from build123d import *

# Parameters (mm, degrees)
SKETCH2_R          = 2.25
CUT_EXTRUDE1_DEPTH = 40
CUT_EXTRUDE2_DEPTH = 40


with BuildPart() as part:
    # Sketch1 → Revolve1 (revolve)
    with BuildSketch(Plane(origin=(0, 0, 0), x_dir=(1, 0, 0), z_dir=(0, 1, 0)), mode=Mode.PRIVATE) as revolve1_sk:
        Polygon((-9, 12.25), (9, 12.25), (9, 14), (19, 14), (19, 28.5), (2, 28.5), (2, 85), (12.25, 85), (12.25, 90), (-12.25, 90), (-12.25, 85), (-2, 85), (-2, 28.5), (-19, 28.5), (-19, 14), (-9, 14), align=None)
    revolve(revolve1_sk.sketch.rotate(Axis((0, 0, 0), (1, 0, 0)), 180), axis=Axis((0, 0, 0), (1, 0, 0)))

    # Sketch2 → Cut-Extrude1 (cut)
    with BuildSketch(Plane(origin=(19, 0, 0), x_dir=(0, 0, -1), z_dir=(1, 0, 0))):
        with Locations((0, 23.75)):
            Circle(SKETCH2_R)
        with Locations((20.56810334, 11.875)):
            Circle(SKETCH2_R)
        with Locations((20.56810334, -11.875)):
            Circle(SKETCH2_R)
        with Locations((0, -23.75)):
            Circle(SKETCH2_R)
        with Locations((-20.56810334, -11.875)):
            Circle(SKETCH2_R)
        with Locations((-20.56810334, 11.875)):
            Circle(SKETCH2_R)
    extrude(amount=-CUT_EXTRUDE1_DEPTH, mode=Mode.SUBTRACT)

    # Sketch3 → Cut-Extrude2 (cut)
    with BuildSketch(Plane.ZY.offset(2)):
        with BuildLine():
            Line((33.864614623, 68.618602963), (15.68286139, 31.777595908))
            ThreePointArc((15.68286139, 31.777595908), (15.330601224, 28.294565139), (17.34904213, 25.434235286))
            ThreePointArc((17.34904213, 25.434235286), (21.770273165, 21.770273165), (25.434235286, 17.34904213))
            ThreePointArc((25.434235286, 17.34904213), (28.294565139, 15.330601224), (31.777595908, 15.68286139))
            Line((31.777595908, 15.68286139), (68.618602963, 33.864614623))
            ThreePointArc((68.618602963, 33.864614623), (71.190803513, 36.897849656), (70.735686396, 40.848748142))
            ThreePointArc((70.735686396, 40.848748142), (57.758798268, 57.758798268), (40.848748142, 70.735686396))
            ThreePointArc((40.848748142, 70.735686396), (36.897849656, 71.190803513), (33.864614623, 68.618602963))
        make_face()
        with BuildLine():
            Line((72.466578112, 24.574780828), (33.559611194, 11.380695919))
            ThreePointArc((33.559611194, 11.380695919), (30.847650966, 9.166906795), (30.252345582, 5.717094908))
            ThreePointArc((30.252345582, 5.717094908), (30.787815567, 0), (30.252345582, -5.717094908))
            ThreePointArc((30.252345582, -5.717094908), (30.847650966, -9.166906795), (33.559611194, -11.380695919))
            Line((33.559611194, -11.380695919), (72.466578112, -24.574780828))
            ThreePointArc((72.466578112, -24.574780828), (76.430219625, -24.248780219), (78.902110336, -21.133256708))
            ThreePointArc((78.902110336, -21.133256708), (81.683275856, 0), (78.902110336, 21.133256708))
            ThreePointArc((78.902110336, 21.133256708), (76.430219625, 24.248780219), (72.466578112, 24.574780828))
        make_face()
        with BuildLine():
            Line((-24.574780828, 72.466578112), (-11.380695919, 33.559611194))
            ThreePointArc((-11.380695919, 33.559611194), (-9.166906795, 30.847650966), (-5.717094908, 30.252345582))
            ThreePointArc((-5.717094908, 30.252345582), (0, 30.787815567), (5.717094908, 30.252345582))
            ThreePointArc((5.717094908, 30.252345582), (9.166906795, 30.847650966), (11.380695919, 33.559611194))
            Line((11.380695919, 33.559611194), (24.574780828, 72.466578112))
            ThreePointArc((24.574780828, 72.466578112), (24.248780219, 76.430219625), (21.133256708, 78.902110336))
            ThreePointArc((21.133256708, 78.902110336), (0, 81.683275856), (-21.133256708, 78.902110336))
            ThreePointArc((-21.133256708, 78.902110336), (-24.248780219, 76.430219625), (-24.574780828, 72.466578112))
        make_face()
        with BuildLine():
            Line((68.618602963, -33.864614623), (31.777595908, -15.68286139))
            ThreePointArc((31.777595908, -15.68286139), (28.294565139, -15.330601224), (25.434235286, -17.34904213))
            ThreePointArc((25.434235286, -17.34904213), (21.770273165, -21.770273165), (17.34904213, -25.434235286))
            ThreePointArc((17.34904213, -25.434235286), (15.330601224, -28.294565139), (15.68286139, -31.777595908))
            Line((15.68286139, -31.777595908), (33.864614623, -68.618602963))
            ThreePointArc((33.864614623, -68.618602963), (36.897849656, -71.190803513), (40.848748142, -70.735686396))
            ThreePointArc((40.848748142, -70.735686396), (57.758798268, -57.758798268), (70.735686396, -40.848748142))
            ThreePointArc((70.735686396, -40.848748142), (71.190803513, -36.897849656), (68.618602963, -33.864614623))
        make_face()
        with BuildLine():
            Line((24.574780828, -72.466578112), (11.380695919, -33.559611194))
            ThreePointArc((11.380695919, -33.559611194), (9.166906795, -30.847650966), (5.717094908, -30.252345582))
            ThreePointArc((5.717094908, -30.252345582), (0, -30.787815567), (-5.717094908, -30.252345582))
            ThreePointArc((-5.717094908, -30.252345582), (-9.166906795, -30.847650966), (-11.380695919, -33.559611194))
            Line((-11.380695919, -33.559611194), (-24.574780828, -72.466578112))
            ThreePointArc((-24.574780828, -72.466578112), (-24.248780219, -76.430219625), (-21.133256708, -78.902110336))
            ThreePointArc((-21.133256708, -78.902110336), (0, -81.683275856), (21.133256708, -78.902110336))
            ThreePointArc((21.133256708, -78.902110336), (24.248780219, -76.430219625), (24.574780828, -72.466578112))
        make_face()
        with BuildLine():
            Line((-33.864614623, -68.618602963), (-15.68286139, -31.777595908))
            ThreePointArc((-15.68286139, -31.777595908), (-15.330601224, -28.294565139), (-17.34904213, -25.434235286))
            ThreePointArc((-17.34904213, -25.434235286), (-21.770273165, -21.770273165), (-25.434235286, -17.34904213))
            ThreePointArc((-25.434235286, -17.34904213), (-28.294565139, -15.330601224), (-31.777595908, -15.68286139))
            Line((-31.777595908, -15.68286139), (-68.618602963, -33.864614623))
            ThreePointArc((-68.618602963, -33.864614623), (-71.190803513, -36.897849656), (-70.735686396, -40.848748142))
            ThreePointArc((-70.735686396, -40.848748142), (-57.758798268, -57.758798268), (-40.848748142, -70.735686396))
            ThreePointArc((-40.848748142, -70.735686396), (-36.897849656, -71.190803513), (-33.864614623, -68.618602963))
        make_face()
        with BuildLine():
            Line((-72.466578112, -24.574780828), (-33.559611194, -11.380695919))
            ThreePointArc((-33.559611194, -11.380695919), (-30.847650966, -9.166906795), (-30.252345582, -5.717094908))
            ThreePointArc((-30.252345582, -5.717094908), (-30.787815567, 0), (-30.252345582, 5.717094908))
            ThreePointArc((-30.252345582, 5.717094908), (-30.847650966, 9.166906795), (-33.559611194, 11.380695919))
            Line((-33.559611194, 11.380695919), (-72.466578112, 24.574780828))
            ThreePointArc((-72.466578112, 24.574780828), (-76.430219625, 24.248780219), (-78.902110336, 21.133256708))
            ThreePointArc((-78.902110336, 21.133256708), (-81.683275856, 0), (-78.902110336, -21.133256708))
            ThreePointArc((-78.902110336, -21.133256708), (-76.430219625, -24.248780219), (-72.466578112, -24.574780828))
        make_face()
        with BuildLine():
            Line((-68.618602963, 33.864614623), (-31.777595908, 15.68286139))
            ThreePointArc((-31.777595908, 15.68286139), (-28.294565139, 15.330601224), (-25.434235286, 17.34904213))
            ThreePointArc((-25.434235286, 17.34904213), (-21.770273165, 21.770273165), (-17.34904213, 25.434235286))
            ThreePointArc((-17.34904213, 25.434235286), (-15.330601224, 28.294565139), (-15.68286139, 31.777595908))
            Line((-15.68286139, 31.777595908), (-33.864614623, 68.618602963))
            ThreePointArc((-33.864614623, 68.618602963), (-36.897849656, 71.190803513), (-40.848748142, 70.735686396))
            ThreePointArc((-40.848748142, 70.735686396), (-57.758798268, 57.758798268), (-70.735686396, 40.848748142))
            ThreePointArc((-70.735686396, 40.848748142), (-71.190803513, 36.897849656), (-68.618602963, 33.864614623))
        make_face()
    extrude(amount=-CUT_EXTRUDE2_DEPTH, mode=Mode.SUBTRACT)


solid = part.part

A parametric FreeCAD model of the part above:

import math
import FreeCAD as App
import Part
import Sketcher

V = App.Vector


def add_polygon(sketch, points):
    """Adds a closed chain of lines whose ends are joined by coincident constraints."""
    first, n = sketch.GeometryCount, len(points)
    for a, b in zip(points, points[1:] + points[:1]):
        sketch.addGeometry(Part.LineSegment(App.Vector(*a, 0), App.Vector(*b, 0)), False)
    for i in range(n):
        sketch.addConstraint(Sketcher.Constraint("Coincident", first + i, 2, first + (i + 1) % n, 1))

doc = App.newDocument("Part")
params = doc.addObject("Spreadsheet::Sheet", "Params")
for row, (alias, value) in enumerate([
    ("sketch1_width", "18 mm"),
    ("sketch1_width2", "10 mm"),
    ("sketch1_width3", "17 mm"),
    ("sketch1_height", "5 mm"),
    ("sketch1_width4", "24.5 mm"),
    ("revolution_angle", "360 deg"),
    ("sketch2_diameter", "4.5 mm"),
    ("pocket1_length", "40 mm"),
    ("sketch3_radius", "5 mm"),
    ("pocket2_length", "40 mm"),
], start=1):
    params.set(f"A{row}", alias)
    params.set(f"B{row}", "=" + value)
    params.setAlias(f"B{row}", alias)

body = doc.addObject("PartDesign::Body", "Body")

# Sketch on XZ plane
sketch1 = body.newObject("Sketcher::SketchObject", "Sketch")
sketch1.AttachmentSupport = (doc.getObject("XZ_Plane"), [""])
sketch1.MapMode = "FlatFace"
add_polygon(sketch1, [(-9, -12.2), (9, -12.2), (9, -14), (19, -14), (19, -28.5), (2, -28.5), (2, -85), (12.2, -85), (12.2, -90), (-12.2, -90), (-12.2, -85), (-2, -85), (-2, -28.5), (-19, -28.5), (-19, -14), (-9, -14)])  # lines 0-15
sketch1.addConstraint([
    Sketcher.Constraint("Horizontal", 0),
    Sketcher.Constraint("Vertical", 1),
    Sketcher.Constraint("Horizontal", 2),
    Sketcher.Constraint("Vertical", 3),
    Sketcher.Constraint("Horizontal", 4),
    Sketcher.Constraint("Vertical", 5),
    Sketcher.Constraint("Horizontal", 6),
    Sketcher.Constraint("Vertical", 7),
    Sketcher.Constraint("Horizontal", 8),
    Sketcher.Constraint("Vertical", 9),
    Sketcher.Constraint("Horizontal", 10),
    Sketcher.Constraint("Vertical", 11),
    Sketcher.Constraint("Horizontal", 12),
    Sketcher.Constraint("Vertical", 13),
    Sketcher.Constraint("Horizontal", 14),
    Sketcher.Constraint("Vertical", 15),
    Sketcher.Constraint("Symmetric", 6, 2, 9, 2, -2),
    Sketcher.Constraint("Symmetric", 4, 2, 11, 2, -2),
    Sketcher.Constraint("Symmetric", 2, 2, 13, 2, -2),
    Sketcher.Constraint("Equal", 2, 14),
    Sketcher.Constraint("DistanceX", 0, 1, 0, 2, 18.0),
    Sketcher.Constraint("DistanceX", 2, 1, 2, 2, 10.0),
    Sketcher.Constraint("DistanceX", 4, 2, 4, 1, 17.0),
    Sketcher.Constraint("DistanceY", 7, 2, 7, 1, 5.0),
    Sketcher.Constraint("DistanceX", 8, 2, 8, 1, 24.5),
    Sketcher.Constraint("DistanceY", 3, 2, 3, 1, 14.5),
    Sketcher.Constraint("DistanceY", 5, 2, 5, 1, 56.5),
    Sketcher.Constraint("DistanceY", 1, 2, -1, 1, 14.0),
    Sketcher.Constraint("DistanceY", 1, 2, 1, 1, 1.75),
])
sketch1.setExpression("Constraints[36]", "Params.sketch1_width")
sketch1.setExpression("Constraints[37]", "Params.sketch1_width2")
sketch1.setExpression("Constraints[38]", "Params.sketch1_width3")
sketch1.setExpression("Constraints[39]", "Params.sketch1_height")
sketch1.setExpression("Constraints[40]", "Params.sketch1_width4")
revolution = body.newObject("PartDesign::Revolution", "Revolution")
revolution.Profile = sketch1
revolution.ReferenceAxis = (sketch1, ["H_Axis"])
revolution.setExpression("Angle", "Params.revolution_angle")

# Sketch on YZ plane
sketch2 = body.newObject("Sketcher::SketchObject", "Sketch001")
sketch2.AttachmentSupport = (doc.getObject("YZ_Plane"), [""])
sketch2.MapMode = "FlatFace"
sketch2.AttachmentOffset = App.Placement(V(0, 0, 19), App.Rotation())
sketch2.addGeometry([
    Part.Circle(V(23.8, 0, 0), V(0, 0, 1), 2.2),  # 0
    Part.Circle(V(11.9, -20.6, 0), V(0, 0, 1), 2.2),  # 1
    Part.Circle(V(-11.9, -20.6, 0), V(0, 0, 1), 2.2),  # 2
    Part.Circle(V(-23.8, 0, 0), V(0, 0, 1), 2.2),  # 3
    Part.Circle(V(-11.9, 20.6, 0), V(0, 0, 1), 2.2),  # 4
    Part.Circle(V(11.9, 20.6, 0), V(0, 0, 1), 2.2),  # 5
], False)
sketch2.addConstraint([
    Sketcher.Constraint("Equal", 0, 1),
    Sketcher.Constraint("Equal", 1, 2),
    Sketcher.Constraint("Equal", 2, 3),
    Sketcher.Constraint("Equal", 3, 4),
    Sketcher.Constraint("Equal", 4, 5),
    Sketcher.Constraint("Symmetric", 0, 3, 3, 3, -1, 1),
    Sketcher.Constraint("Symmetric", 1, 3, 4, 3, -1, 1),
    Sketcher.Constraint("Symmetric", 2, 3, 5, 3, -1, 1),
    Sketcher.Constraint("Symmetric", 1, 3, 2, 3, -2),
    Sketcher.Constraint("PointOnObject", 0, 3, -1),
    Sketcher.Constraint("Diameter", 0, 4.5),
    Sketcher.Constraint("DistanceX", 3, 3, 0, 3, 47.5),
    Sketcher.Constraint("DistanceX", 2, 3, 1, 3, 23.75),
    Sketcher.Constraint("DistanceY", 1, 3, -1, 1, 20.568103),
])
sketch2.setExpression("Constraints[10]", "Params.sketch2_diameter")
pocket1 = body.newObject("PartDesign::Pocket", "Pocket")
pocket1.Profile = sketch2
pocket1.setExpression("Length", "Params.pocket1_length")

# Sketch on YZ plane
sketch3 = body.newObject("Sketcher::SketchObject", "Sketch002")
sketch3.AttachmentSupport = (doc.getObject("YZ_Plane"), [""])
sketch3.MapMode = "FlatFace"
sketch3.AttachmentOffset = App.Placement(V(0, 0, -2), App.Rotation())
sketch3.addGeometry([
    Part.LineSegment(V(68.6, 33.9, 0), V(31.8, 15.7, 0)),  # 0
    Part.ArcOfCircle(Part.Circle(V(29.6, 20.2, 0), V(0, 0, 1), 5), math.radians(-146), math.radians(-64)),  # 1
    Part.ArcOfCircle(Part.Circle(V(0, 0, 0), V(0, 0, 1), 30.8), math.radians(34), math.radians(56)),  # 2
    Part.ArcOfCircle(Part.Circle(V(20.2, 29.6, 0), V(0, 0, 1), 5), math.radians(154), math.radians(236)),  # 3
    Part.LineSegment(V(15.7, 31.8, 0), V(33.9, 68.6, 0)),  # 4
    Part.ArcOfCircle(Part.Circle(V(38.3, 66.4, 0), V(0, 0, 1), 5), math.radians(60), math.radians(154)),  # 5
    Part.ArcOfCircle(Part.Circle(V(0, 0, 0), V(0, 0, 1), 81.7), math.radians(30), math.radians(60)),  # 6
    Part.ArcOfCircle(Part.Circle(V(66.4, 38.3, 0), V(0, 0, 1), 5), math.radians(-64), math.radians(30)),  # 7
    Part.LineSegment(V(24.6, 72.5, 0), V(11.4, 33.6, 0)),  # 8
    Part.ArcOfCircle(Part.Circle(V(6.6, 35.2, 0), V(0, 0, 1), 5), math.radians(-101), math.radians(-19)),  # 9
    Part.ArcOfCircle(Part.Circle(V(0, 0, 0), V(0, 0, 1), 30.8), math.radians(79), math.radians(101)),  # 10
    Part.ArcOfCircle(Part.Circle(V(-6.6, 35.2, 0), V(0, 0, 1), 5), math.radians(-161), math.radians(-79)),  # 11
    Part.LineSegment(V(-11.4, 33.6, 0), V(-24.6, 72.5, 0)),  # 12
    Part.ArcOfCircle(Part.Circle(V(-19.8, 74.1, 0), V(0, 0, 1), 5), math.radians(105), math.radians(199)),  # 13
    Part.ArcOfCircle(Part.Circle(V(0, 0, 0), V(0, 0, 1), 81.7), math.radians(75), math.radians(105)),  # 14
    Part.ArcOfCircle(Part.Circle(V(19.8, 74.1, 0), V(0, 0, 1), 5), math.radians(-19), math.radians(75)),  # 15
    Part.LineSegment(V(72.5, -24.6, 0), V(33.6, -11.4, 0)),  # 16
    Part.ArcOfCircle(Part.Circle(V(35.2, -6.6, 0), V(0, 0, 1), 5), math.radians(169), math.radians(251)),  # 17
    Part.ArcOfCircle(Part.Circle(V(0, 0, 0), V(0, 0, 1), 30.8), math.radians(-11), math.radians(11)),  # 18
    Part.ArcOfCircle(Part.Circle(V(35.2, 6.6, 0), V(0, 0, 1), 5), math.radians(109), math.radians(191)),  # 19
    Part.LineSegment(V(33.6, 11.4, 0), V(72.5, 24.6, 0)),  # 20
    Part.ArcOfCircle(Part.Circle(V(74.1, 19.8, 0), V(0, 0, 1), 5), math.radians(15), math.radians(109)),  # 21
    Part.ArcOfCircle(Part.Circle(V(0, 0, 0), V(0, 0, 1), 81.7), math.radians(-15), math.radians(15)),  # 22
    Part.ArcOfCircle(Part.Circle(V(74.1, -19.8, 0), V(0, 0, 1), 5), math.radians(-109), math.radians(-15)),  # 23
    Part.LineSegment(V(-33.9, 68.6, 0), V(-15.7, 31.8, 0)),  # 24
    Part.ArcOfCircle(Part.Circle(V(-20.2, 29.6, 0), V(0, 0, 1), 5), math.radians(-56), math.radians(26)),  # 25
    Part.ArcOfCircle(Part.Circle(V(0, 0, 0), V(0, 0, 1), 30.8), math.radians(124), math.radians(146)),  # 26
    Part.ArcOfCircle(Part.Circle(V(-29.6, 20.2, 0), V(0, 0, 1), 5), math.radians(-116), math.radians(-34)),  # 27
    Part.LineSegment(V(-31.8, 15.7, 0), V(-68.6, 33.9, 0)),  # 28
    Part.ArcOfCircle(Part.Circle(V(-66.4, 38.3, 0), V(0, 0, 1), 5), math.radians(150), math.radians(244)),  # 29
    Part.ArcOfCircle(Part.Circle(V(0, 0, 0), V(0, 0, 1), 81.7), math.radians(120), math.radians(150)),  # 30
    Part.ArcOfCircle(Part.Circle(V(-38.3, 66.4, 0), V(0, 0, 1), 5), math.radians(26), math.radians(120)),  # 31
    Part.LineSegment(V(-72.5, 24.6, 0), V(-33.6, 11.4, 0)),  # 32
    Part.ArcOfCircle(Part.Circle(V(-35.2, 6.6, 0), V(0, 0, 1), 5), math.radians(-11), math.radians(71)),  # 33
    Part.ArcOfCircle(Part.Circle(V(0, 0, 0), V(0, 0, 1), 30.8), math.radians(169), math.radians(191)),  # 34
    Part.ArcOfCircle(Part.Circle(V(-35.2, -6.6, 0), V(0, 0, 1), 5), math.radians(-71), math.radians(11)),  # 35
    Part.LineSegment(V(-33.6, -11.4, 0), V(-72.5, -24.6, 0)),  # 36
    Part.ArcOfCircle(Part.Circle(V(-74.1, -19.8, 0), V(0, 0, 1), 5), math.radians(-165), math.radians(-71)),  # 37
    Part.ArcOfCircle(Part.Circle(V(0, 0, 0), V(0, 0, 1), 81.7), math.radians(165), math.radians(195)),  # 38
    Part.ArcOfCircle(Part.Circle(V(-74.1, 19.8, 0), V(0, 0, 1), 5), math.radians(71), math.radians(165)),  # 39
    Part.LineSegment(V(-68.6, -33.9, 0), V(-31.8, -15.7, 0)),  # 40
    Part.ArcOfCircle(Part.Circle(V(-29.6, -20.2, 0), V(0, 0, 1), 5), math.radians(34), math.radians(116)),  # 41
    Part.ArcOfCircle(Part.Circle(V(0, 0, 0), V(0, 0, 1), 30.8), math.radians(-146), math.radians(-124)),  # 42
    Part.ArcOfCircle(Part.Circle(V(-20.2, -29.6, 0), V(0, 0, 1), 5), math.radians(-26), math.radians(56)),  # 43
    Part.LineSegment(V(-15.7, -31.8, 0), V(-33.9, -68.6, 0)),  # 44
    Part.ArcOfCircle(Part.Circle(V(-38.3, -66.4, 0), V(0, 0, 1), 5), math.radians(-120), math.radians(-26)),  # 45
    Part.ArcOfCircle(Part.Circle(V(0, 0, 0), V(0, 0, 1), 81.7), math.radians(-150), math.radians(-120)),  # 46
    Part.ArcOfCircle(Part.Circle(V(-66.4, -38.3, 0), V(0, 0, 1), 5), math.radians(116), math.radians(210)),  # 47
    Part.LineSegment(V(-24.6, -72.5, 0), V(-11.4, -33.6, 0)),  # 48
    Part.ArcOfCircle(Part.Circle(V(-6.6, -35.2, 0), V(0, 0, 1), 5), math.radians(79), math.radians(161)),  # 49
    Part.ArcOfCircle(Part.Circle(V(0, 0, 0), V(0, 0, 1), 30.8), math.radians(-101), math.radians(-79)),  # 50
    Part.ArcOfCircle(Part.Circle(V(6.6, -35.2, 0), V(0, 0, 1), 5), math.radians(19), math.radians(101)),  # 51
    Part.LineSegment(V(11.4, -33.6, 0), V(24.6, -72.5, 0)),  # 52
    Part.ArcOfCircle(Part.Circle(V(19.8, -74.1, 0), V(0, 0, 1), 5), math.radians(-75), math.radians(19)),  # 53
    Part.ArcOfCircle(Part.Circle(V(0, 0, 0), V(0, 0, 1), 81.7), math.radians(-105), math.radians(-75)),  # 54
    Part.ArcOfCircle(Part.Circle(V(-19.8, -74.1, 0), V(0, 0, 1), 5), math.radians(161), math.radians(255)),  # 55
    Part.LineSegment(V(33.9, -68.6, 0), V(15.7, -31.8, 0)),  # 56
    Part.ArcOfCircle(Part.Circle(V(20.2, -29.6, 0), V(0, 0, 1), 5), math.radians(124), math.radians(206)),  # 57
    Part.ArcOfCircle(Part.Circle(V(0, 0, 0), V(0, 0, 1), 30.8), math.radians(-56), math.radians(-34)),  # 58
    Part.ArcOfCircle(Part.Circle(V(29.6, -20.2, 0), V(0, 0, 1), 5), math.radians(64), math.radians(146)),  # 59
    Part.LineSegment(V(31.8, -15.7, 0), V(68.6, -33.9, 0)),  # 60
    Part.ArcOfCircle(Part.Circle(V(66.4, -38.3, 0), V(0, 0, 1), 5), math.radians(-30), math.radians(64)),  # 61
    Part.ArcOfCircle(Part.Circle(V(0, 0, 0), V(0, 0, 1), 81.7), math.radians(-60), math.radians(-30)),  # 62
    Part.ArcOfCircle(Part.Circle(V(38.3, -66.4, 0), V(0, 0, 1), 5), math.radians(-154), math.radians(-60)),  # 63
], False)
sketch3.addConstraint([
    Sketcher.Constraint("Tangent", 0, 2, 1, 2),
    Sketcher.Constraint("Tangent", 1, 1, 2, 1),
    Sketcher.Constraint("Tangent", 2, 2, 3, 2),
    Sketcher.Constraint("Tangent", 3, 1, 4, 1),
    Sketcher.Constraint("Tangent", 4, 2, 5, 2),
    Sketcher.Constraint("Tangent", 5, 1, 6, 2),
    Sketcher.Constraint("Tangent", 6, 1, 7, 2),
    Sketcher.Constraint("Tangent", 7, 1, 0, 1),
    Sketcher.Constraint("Tangent", 8, 2, 9, 2),
    Sketcher.Constraint("Tangent", 9, 1, 10, 1),
    Sketcher.Constraint("Tangent", 10, 2, 11, 2),
    Sketcher.Constraint("Tangent", 11, 1, 12, 1),
    Sketcher.Constraint("Tangent", 12, 2, 13, 2),
    Sketcher.Constraint("Tangent", 13, 1, 14, 2),
    Sketcher.Constraint("Tangent", 14, 1, 15, 2),
    Sketcher.Constraint("Tangent", 15, 1, 8, 1),
    Sketcher.Constraint("Tangent", 16, 2, 17, 2),
    Sketcher.Constraint("Tangent", 17, 1, 18, 1),
    Sketcher.Constraint("Tangent", 18, 2, 19, 2),
    Sketcher.Constraint("Tangent", 19, 1, 20, 1),
    Sketcher.Constraint("Tangent", 20, 2, 21, 2),
    Sketcher.Constraint("Tangent", 21, 1, 22, 2),
    Sketcher.Constraint("Tangent", 22, 1, 23, 2),
    Sketcher.Constraint("Tangent", 23, 1, 16, 1),
    Sketcher.Constraint("Tangent", 24, 2, 25, 2),
    Sketcher.Constraint("Tangent", 25, 1, 26, 1),
    Sketcher.Constraint("Tangent", 26, 2, 27, 2),
    Sketcher.Constraint("Tangent", 27, 1, 28, 1),
    Sketcher.Constraint("Tangent", 28, 2, 29, 2),
    Sketcher.Constraint("Tangent", 29, 1, 30, 2),
    Sketcher.Constraint("Tangent", 30, 1, 31, 2),
    Sketcher.Constraint("Tangent", 31, 1, 24, 1),
    Sketcher.Constraint("Tangent", 32, 2, 33, 2),
    Sketcher.Constraint("Tangent", 33, 1, 34, 1),
    Sketcher.Constraint("Tangent", 34, 2, 35, 2),
    Sketcher.Constraint("Tangent", 35, 1, 36, 1),
    Sketcher.Constraint("Tangent", 36, 2, 37, 2),
    Sketcher.Constraint("Tangent", 37, 1, 38, 2),
    Sketcher.Constraint("Tangent", 38, 1, 39, 2),
    Sketcher.Constraint("Tangent", 39, 1, 32, 1),
    Sketcher.Constraint("Tangent", 40, 2, 41, 2),
    Sketcher.Constraint("Tangent", 41, 1, 42, 1),
    Sketcher.Constraint("Tangent", 42, 2, 43, 2),
    Sketcher.Constraint("Tangent", 43, 1, 44, 1),
    Sketcher.Constraint("Tangent", 44, 2, 45, 2),
    Sketcher.Constraint("Tangent", 45, 1, 46, 2),
    Sketcher.Constraint("Tangent", 46, 1, 47, 2),
    Sketcher.Constraint("Tangent", 47, 1, 40, 1),
    Sketcher.Constraint("Tangent", 48, 2, 49, 2),
    Sketcher.Constraint("Tangent", 49, 1, 50, 1),
    Sketcher.Constraint("Tangent", 50, 2, 51, 2),
    Sketcher.Constraint("Tangent", 51, 1, 52, 1),
    Sketcher.Constraint("Tangent", 52, 2, 53, 2),
    Sketcher.Constraint("Tangent", 53, 1, 54, 2),
    Sketcher.Constraint("Tangent", 54, 1, 55, 2),
    Sketcher.Constraint("Tangent", 55, 1, 48, 1),
    Sketcher.Constraint("Tangent", 56, 2, 57, 2),
    Sketcher.Constraint("Tangent", 57, 1, 58, 1),
    Sketcher.Constraint("Tangent", 58, 2, 59, 2),
    Sketcher.Constraint("Tangent", 59, 1, 60, 1),
    Sketcher.Constraint("Tangent", 60, 2, 61, 2),
    Sketcher.Constraint("Tangent", 61, 1, 62, 2),
    Sketcher.Constraint("Tangent", 62, 1, 63, 2),
    Sketcher.Constraint("Tangent", 63, 1, 56, 1),
    Sketcher.Constraint("Coincident", 2, 3, -1, 1),
    Sketcher.Constraint("Coincident", 6, 3, -1, 1),
    Sketcher.Constraint("Coincident", 10, 3, -1, 1),
    Sketcher.Constraint("Coincident", 14, 3, -1, 1),
    Sketcher.Constraint("Coincident", 18, 3, -1, 1),
    Sketcher.Constraint("Coincident", 22, 3, -1, 1),
    Sketcher.Constraint("Coincident", 26, 3, -1, 1),
    Sketcher.Constraint("Coincident", 30, 3, -1, 1),
    Sketcher.Constraint("Coincident", 34, 3, -1, 1),
    Sketcher.Constraint("Coincident", 38, 3, -1, 1),
    Sketcher.Constraint("Coincident", 42, 3, -1, 1),
    Sketcher.Constraint("Coincident", 46, 3, -1, 1),
    Sketcher.Constraint("Coincident", 50, 3, -1, 1),
    Sketcher.Constraint("Coincident", 54, 3, -1, 1),
    Sketcher.Constraint("Coincident", 58, 3, -1, 1),
    Sketcher.Constraint("Coincident", 62, 3, -1, 1),
    Sketcher.Constraint("Equal", 1, 3),
    Sketcher.Constraint("Equal", 3, 5),
    Sketcher.Constraint("Equal", 5, 7),
    Sketcher.Constraint("Equal", 7, 9),
    Sketcher.Constraint("Equal", 2, 10),
    Sketcher.Constraint("Equal", 9, 11),
    Sketcher.Constraint("Equal", 11, 13),
    Sketcher.Constraint("Equal", 6, 14),
    Sketcher.Constraint("Equal", 13, 15),
    Sketcher.Constraint("Equal", 15, 17),
    Sketcher.Constraint("Equal", 10, 18),
    Sketcher.Constraint("Equal", 17, 19),
    Sketcher.Constraint("Equal", 19, 21),
    Sketcher.Constraint("Equal", 14, 22),
    Sketcher.Constraint("Equal", 21, 23),
    Sketcher.Constraint("Equal", 23, 25),
    Sketcher.Constraint("Equal", 18, 26),
    Sketcher.Constraint("Equal", 25, 27),
    Sketcher.Constraint("Equal", 27, 29),
    Sketcher.Constraint("Equal", 22, 30),
    Sketcher.Constraint("Equal", 29, 31),
    Sketcher.Constraint("Equal", 31, 33),
    Sketcher.Constraint("Equal", 26, 34),
    Sketcher.Constraint("Equal", 33, 35),
    Sketcher.Constraint("Equal", 35, 37),
    Sketcher.Constraint("Equal", 30, 38),
    Sketcher.Constraint("Equal", 37, 39),
    Sketcher.Constraint("Equal", 39, 41),
    Sketcher.Constraint("Equal", 34, 42),
    Sketcher.Constraint("Equal", 41, 43),
    Sketcher.Constraint("Equal", 43, 45),
    Sketcher.Constraint("Equal", 38, 46),
    Sketcher.Constraint("Equal", 45, 47),
    Sketcher.Constraint("Equal", 47, 49),
    Sketcher.Constraint("Equal", 42, 50),
    Sketcher.Constraint("Equal", 49, 51),
    Sketcher.Constraint("Equal", 51, 53),
    Sketcher.Constraint("Equal", 46, 54),
    Sketcher.Constraint("Equal", 53, 55),
    Sketcher.Constraint("Equal", 55, 57),
    Sketcher.Constraint("Equal", 50, 58),
    Sketcher.Constraint("Equal", 57, 59),
    Sketcher.Constraint("Equal", 59, 61),
    Sketcher.Constraint("Equal", 54, 62),
    Sketcher.Constraint("Equal", 61, 63),
    Sketcher.Constraint("Symmetric", 16, 2, 32, 2, -1, 1),
    Sketcher.Constraint("Symmetric", 19, 1, 35, 1, -1, 1),
    Sketcher.Constraint("Symmetric", 0, 2, 40, 2, -1, 1),
    Sketcher.Constraint("Symmetric", 3, 1, 43, 1, -1, 1),
    Sketcher.Constraint("Symmetric", 8, 2, 48, 2, -1, 1),
    Sketcher.Constraint("Symmetric", 11, 1, 51, 1, -1, 1),
    Sketcher.Constraint("Symmetric", 24, 2, 56, 2, -1, 1),
    Sketcher.Constraint("Symmetric", 27, 1, 59, 1, -1, 1),
    Sketcher.Constraint("Symmetric", 8, 2, 11, 1, -2),
    Sketcher.Constraint("Symmetric", 3, 1, 24, 2, -2),
    Sketcher.Constraint("Symmetric", 0, 2, 27, 1, -2),
    Sketcher.Constraint("Symmetric", 19, 1, 32, 2, -2),
    Sketcher.Constraint("Perpendicular", 8, 16),
    Sketcher.Constraint("Perpendicular", 0, 24),
    Sketcher.Constraint("Equal", 0, 4),
    Sketcher.Constraint("Equal", 4, 8),
    Sketcher.Constraint("Equal", 12, 16),
    Sketcher.Constraint("Radius", 1, 5.0),
    Sketcher.Constraint("Radius", 2, 30.787816),
    Sketcher.Constraint("Radius", 6, 81.683276),
    Sketcher.Constraint("Distance", 0, 41.083281),
    Sketcher.Constraint("DistanceY", -1, 1, 1, 3, 20.16656),
    Sketcher.Constraint("DistanceY", -1, 1, 13, 3, 74.072351),
])
sketch3.setExpression("Constraints[142]", "Params.sketch3_radius")
pocket2 = body.newObject("PartDesign::Pocket", "Pocket001")
pocket2.Profile = sketch3
pocket2.setExpression("Length", "Params.pocket2_length")
pocket2.Reversed = True

doc.recompute()
